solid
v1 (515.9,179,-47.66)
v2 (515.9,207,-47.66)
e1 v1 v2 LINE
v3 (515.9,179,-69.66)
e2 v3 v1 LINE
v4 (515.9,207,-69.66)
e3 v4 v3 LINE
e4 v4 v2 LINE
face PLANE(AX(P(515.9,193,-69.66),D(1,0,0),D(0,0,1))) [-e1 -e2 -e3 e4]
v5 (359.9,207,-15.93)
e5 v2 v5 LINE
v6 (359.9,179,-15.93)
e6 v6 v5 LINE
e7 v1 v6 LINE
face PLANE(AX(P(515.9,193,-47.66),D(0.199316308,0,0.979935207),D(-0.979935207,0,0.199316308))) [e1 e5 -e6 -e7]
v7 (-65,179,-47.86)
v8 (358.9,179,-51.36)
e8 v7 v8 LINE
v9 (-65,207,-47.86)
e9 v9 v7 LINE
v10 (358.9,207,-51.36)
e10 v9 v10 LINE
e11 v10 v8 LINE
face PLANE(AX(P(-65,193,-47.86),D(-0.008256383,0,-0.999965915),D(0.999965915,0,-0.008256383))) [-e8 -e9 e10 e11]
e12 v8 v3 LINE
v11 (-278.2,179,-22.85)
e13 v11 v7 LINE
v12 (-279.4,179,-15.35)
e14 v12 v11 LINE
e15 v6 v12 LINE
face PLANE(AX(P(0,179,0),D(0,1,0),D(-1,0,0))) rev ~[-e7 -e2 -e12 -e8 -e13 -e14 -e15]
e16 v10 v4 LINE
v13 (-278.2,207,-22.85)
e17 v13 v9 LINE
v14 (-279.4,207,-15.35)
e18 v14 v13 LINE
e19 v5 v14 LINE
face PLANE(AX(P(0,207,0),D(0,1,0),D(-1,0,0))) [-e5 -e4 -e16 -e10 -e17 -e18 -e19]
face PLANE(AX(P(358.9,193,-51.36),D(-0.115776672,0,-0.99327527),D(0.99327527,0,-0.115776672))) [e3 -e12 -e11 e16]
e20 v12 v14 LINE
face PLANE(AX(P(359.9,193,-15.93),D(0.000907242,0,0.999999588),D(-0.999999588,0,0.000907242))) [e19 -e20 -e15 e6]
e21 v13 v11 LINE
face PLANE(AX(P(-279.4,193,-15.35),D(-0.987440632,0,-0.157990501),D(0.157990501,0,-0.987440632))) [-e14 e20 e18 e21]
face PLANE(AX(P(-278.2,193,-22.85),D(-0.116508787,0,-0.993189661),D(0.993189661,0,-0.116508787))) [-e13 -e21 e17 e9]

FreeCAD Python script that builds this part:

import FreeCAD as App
import Part
import Sketcher
from FreeCAD import Vector
Q = App.Units.Quantity

doc = App.newDocument("Part")
body = doc.addObject("PartDesign::Body", "Body")

# Sketch on XZ plane
sketch1 = body.newObject("Sketcher::SketchObject", "Sketch")
sketch1.AttachmentSupport = (doc.getObject("XZ_Plane"), [""])
sketch1.MapMode = "FlatFace"
sketch1.AttachmentOffset = App.Placement(Vector(0, 0, -193), App.Rotation())
sketch1.addGeometry(Part.LineSegment(Vector(-278, -23, 0), Vector(-279, -15, 0)), False)
sketch1.addGeometry(Part.LineSegment(Vector(-279, -15, 0), Vector(360, -16, 0)), False)
sketch1.addGeometry(Part.LineSegment(Vector(360, -16, 0), Vector(516, -48, 0)), False)
sketch1.addGeometry(Part.LineSegment(Vector(516, -48, 0), Vector(516, -70, 0)), False)
sketch1.addGeometry(Part.LineSegment(Vector(516, -70, 0), Vector(359, -51, 0)), False)
sketch1.addGeometry(Part.LineSegment(Vector(359, -51, 0), Vector(-65, -48, 0)), False)
sketch1.addGeometry(Part.LineSegment(Vector(-65, -48, 0), Vector(-278, -23, 0)), False)
sketch1.addConstraint(Sketcher.Constraint("Coincident", 0, 2, 1, 1))
sketch1.addConstraint(Sketcher.Constraint("Coincident", 1, 2, 2, 1))
sketch1.addConstraint(Sketcher.Constraint("Coincident", 2, 2, 3, 1))
sketch1.addConstraint(Sketcher.Constraint("Coincident", 3, 2, 4, 1))
sketch1.addConstraint(Sketcher.Constraint("Coincident", 4, 2, 5, 1))
sketch1.addConstraint(Sketcher.Constraint("Coincident", 5, 2, 6, 1))
sketch1.addConstraint(Sketcher.Constraint("Coincident", 6, 2, 0, 1))
sketch1.addConstraint(Sketcher.Constraint("Vertical", 3))
sketch1.addConstraint(Sketcher.Constraint("DistanceX", 5, 2, -1, 1, Q("65 mm")))
sketch1.addConstraint(Sketcher.Constraint("DistanceX", 0, 2, -1, 1, Q("279.4 mm")))
sketch1.addConstraint(Sketcher.Constraint("DistanceX", -1, 1, 1, 2, Q("359.9 mm")))
sketch1.addConstraint(Sketcher.Constraint("DistanceX", -1, 1, 2, 2, Q("515.9 mm")))
sketch1.addConstraint(Sketcher.Constraint("DistanceX", -1, 1, 4, 2, Q("358.9 mm")))
sketch1.addConstraint(Sketcher.Constraint("DistanceX", 6, 2, -1, 1, Q("278.2 mm")))
sketch1.addConstraint(Sketcher.Constraint("DistanceY", 3, 2, 3, 1, Q("22 mm")))
sketch1.addConstraint(Sketcher.Constraint("DistanceY", 0, 2, -1, 1, Q("15.35 mm")))
sketch1.addConstraint(Sketcher.Constraint("DistanceY", 1, 2, -1, 1, Q("15.93 mm")))
sketch1.addConstraint(Sketcher.Constraint("DistanceY", 2, 2, -1, 1, Q("47.66 mm")))
sketch1.addConstraint(Sketcher.Constraint("DistanceY", 4, 2, -1, 1, Q("51.36 mm")))
sketch1.addConstraint(Sketcher.Constraint("DistanceY", 5, 2, -1, 1, Q("47.86 mm")))
sketch1.addConstraint(Sketcher.Constraint("DistanceY", 6, 2, -1, 1, Q("22.85 mm")))
pad1 = body.newObject("PartDesign::Pad", "Pad")
pad1.Profile = sketch1
pad1.Length = 28
pad1.Midplane = True

doc.recompute()
